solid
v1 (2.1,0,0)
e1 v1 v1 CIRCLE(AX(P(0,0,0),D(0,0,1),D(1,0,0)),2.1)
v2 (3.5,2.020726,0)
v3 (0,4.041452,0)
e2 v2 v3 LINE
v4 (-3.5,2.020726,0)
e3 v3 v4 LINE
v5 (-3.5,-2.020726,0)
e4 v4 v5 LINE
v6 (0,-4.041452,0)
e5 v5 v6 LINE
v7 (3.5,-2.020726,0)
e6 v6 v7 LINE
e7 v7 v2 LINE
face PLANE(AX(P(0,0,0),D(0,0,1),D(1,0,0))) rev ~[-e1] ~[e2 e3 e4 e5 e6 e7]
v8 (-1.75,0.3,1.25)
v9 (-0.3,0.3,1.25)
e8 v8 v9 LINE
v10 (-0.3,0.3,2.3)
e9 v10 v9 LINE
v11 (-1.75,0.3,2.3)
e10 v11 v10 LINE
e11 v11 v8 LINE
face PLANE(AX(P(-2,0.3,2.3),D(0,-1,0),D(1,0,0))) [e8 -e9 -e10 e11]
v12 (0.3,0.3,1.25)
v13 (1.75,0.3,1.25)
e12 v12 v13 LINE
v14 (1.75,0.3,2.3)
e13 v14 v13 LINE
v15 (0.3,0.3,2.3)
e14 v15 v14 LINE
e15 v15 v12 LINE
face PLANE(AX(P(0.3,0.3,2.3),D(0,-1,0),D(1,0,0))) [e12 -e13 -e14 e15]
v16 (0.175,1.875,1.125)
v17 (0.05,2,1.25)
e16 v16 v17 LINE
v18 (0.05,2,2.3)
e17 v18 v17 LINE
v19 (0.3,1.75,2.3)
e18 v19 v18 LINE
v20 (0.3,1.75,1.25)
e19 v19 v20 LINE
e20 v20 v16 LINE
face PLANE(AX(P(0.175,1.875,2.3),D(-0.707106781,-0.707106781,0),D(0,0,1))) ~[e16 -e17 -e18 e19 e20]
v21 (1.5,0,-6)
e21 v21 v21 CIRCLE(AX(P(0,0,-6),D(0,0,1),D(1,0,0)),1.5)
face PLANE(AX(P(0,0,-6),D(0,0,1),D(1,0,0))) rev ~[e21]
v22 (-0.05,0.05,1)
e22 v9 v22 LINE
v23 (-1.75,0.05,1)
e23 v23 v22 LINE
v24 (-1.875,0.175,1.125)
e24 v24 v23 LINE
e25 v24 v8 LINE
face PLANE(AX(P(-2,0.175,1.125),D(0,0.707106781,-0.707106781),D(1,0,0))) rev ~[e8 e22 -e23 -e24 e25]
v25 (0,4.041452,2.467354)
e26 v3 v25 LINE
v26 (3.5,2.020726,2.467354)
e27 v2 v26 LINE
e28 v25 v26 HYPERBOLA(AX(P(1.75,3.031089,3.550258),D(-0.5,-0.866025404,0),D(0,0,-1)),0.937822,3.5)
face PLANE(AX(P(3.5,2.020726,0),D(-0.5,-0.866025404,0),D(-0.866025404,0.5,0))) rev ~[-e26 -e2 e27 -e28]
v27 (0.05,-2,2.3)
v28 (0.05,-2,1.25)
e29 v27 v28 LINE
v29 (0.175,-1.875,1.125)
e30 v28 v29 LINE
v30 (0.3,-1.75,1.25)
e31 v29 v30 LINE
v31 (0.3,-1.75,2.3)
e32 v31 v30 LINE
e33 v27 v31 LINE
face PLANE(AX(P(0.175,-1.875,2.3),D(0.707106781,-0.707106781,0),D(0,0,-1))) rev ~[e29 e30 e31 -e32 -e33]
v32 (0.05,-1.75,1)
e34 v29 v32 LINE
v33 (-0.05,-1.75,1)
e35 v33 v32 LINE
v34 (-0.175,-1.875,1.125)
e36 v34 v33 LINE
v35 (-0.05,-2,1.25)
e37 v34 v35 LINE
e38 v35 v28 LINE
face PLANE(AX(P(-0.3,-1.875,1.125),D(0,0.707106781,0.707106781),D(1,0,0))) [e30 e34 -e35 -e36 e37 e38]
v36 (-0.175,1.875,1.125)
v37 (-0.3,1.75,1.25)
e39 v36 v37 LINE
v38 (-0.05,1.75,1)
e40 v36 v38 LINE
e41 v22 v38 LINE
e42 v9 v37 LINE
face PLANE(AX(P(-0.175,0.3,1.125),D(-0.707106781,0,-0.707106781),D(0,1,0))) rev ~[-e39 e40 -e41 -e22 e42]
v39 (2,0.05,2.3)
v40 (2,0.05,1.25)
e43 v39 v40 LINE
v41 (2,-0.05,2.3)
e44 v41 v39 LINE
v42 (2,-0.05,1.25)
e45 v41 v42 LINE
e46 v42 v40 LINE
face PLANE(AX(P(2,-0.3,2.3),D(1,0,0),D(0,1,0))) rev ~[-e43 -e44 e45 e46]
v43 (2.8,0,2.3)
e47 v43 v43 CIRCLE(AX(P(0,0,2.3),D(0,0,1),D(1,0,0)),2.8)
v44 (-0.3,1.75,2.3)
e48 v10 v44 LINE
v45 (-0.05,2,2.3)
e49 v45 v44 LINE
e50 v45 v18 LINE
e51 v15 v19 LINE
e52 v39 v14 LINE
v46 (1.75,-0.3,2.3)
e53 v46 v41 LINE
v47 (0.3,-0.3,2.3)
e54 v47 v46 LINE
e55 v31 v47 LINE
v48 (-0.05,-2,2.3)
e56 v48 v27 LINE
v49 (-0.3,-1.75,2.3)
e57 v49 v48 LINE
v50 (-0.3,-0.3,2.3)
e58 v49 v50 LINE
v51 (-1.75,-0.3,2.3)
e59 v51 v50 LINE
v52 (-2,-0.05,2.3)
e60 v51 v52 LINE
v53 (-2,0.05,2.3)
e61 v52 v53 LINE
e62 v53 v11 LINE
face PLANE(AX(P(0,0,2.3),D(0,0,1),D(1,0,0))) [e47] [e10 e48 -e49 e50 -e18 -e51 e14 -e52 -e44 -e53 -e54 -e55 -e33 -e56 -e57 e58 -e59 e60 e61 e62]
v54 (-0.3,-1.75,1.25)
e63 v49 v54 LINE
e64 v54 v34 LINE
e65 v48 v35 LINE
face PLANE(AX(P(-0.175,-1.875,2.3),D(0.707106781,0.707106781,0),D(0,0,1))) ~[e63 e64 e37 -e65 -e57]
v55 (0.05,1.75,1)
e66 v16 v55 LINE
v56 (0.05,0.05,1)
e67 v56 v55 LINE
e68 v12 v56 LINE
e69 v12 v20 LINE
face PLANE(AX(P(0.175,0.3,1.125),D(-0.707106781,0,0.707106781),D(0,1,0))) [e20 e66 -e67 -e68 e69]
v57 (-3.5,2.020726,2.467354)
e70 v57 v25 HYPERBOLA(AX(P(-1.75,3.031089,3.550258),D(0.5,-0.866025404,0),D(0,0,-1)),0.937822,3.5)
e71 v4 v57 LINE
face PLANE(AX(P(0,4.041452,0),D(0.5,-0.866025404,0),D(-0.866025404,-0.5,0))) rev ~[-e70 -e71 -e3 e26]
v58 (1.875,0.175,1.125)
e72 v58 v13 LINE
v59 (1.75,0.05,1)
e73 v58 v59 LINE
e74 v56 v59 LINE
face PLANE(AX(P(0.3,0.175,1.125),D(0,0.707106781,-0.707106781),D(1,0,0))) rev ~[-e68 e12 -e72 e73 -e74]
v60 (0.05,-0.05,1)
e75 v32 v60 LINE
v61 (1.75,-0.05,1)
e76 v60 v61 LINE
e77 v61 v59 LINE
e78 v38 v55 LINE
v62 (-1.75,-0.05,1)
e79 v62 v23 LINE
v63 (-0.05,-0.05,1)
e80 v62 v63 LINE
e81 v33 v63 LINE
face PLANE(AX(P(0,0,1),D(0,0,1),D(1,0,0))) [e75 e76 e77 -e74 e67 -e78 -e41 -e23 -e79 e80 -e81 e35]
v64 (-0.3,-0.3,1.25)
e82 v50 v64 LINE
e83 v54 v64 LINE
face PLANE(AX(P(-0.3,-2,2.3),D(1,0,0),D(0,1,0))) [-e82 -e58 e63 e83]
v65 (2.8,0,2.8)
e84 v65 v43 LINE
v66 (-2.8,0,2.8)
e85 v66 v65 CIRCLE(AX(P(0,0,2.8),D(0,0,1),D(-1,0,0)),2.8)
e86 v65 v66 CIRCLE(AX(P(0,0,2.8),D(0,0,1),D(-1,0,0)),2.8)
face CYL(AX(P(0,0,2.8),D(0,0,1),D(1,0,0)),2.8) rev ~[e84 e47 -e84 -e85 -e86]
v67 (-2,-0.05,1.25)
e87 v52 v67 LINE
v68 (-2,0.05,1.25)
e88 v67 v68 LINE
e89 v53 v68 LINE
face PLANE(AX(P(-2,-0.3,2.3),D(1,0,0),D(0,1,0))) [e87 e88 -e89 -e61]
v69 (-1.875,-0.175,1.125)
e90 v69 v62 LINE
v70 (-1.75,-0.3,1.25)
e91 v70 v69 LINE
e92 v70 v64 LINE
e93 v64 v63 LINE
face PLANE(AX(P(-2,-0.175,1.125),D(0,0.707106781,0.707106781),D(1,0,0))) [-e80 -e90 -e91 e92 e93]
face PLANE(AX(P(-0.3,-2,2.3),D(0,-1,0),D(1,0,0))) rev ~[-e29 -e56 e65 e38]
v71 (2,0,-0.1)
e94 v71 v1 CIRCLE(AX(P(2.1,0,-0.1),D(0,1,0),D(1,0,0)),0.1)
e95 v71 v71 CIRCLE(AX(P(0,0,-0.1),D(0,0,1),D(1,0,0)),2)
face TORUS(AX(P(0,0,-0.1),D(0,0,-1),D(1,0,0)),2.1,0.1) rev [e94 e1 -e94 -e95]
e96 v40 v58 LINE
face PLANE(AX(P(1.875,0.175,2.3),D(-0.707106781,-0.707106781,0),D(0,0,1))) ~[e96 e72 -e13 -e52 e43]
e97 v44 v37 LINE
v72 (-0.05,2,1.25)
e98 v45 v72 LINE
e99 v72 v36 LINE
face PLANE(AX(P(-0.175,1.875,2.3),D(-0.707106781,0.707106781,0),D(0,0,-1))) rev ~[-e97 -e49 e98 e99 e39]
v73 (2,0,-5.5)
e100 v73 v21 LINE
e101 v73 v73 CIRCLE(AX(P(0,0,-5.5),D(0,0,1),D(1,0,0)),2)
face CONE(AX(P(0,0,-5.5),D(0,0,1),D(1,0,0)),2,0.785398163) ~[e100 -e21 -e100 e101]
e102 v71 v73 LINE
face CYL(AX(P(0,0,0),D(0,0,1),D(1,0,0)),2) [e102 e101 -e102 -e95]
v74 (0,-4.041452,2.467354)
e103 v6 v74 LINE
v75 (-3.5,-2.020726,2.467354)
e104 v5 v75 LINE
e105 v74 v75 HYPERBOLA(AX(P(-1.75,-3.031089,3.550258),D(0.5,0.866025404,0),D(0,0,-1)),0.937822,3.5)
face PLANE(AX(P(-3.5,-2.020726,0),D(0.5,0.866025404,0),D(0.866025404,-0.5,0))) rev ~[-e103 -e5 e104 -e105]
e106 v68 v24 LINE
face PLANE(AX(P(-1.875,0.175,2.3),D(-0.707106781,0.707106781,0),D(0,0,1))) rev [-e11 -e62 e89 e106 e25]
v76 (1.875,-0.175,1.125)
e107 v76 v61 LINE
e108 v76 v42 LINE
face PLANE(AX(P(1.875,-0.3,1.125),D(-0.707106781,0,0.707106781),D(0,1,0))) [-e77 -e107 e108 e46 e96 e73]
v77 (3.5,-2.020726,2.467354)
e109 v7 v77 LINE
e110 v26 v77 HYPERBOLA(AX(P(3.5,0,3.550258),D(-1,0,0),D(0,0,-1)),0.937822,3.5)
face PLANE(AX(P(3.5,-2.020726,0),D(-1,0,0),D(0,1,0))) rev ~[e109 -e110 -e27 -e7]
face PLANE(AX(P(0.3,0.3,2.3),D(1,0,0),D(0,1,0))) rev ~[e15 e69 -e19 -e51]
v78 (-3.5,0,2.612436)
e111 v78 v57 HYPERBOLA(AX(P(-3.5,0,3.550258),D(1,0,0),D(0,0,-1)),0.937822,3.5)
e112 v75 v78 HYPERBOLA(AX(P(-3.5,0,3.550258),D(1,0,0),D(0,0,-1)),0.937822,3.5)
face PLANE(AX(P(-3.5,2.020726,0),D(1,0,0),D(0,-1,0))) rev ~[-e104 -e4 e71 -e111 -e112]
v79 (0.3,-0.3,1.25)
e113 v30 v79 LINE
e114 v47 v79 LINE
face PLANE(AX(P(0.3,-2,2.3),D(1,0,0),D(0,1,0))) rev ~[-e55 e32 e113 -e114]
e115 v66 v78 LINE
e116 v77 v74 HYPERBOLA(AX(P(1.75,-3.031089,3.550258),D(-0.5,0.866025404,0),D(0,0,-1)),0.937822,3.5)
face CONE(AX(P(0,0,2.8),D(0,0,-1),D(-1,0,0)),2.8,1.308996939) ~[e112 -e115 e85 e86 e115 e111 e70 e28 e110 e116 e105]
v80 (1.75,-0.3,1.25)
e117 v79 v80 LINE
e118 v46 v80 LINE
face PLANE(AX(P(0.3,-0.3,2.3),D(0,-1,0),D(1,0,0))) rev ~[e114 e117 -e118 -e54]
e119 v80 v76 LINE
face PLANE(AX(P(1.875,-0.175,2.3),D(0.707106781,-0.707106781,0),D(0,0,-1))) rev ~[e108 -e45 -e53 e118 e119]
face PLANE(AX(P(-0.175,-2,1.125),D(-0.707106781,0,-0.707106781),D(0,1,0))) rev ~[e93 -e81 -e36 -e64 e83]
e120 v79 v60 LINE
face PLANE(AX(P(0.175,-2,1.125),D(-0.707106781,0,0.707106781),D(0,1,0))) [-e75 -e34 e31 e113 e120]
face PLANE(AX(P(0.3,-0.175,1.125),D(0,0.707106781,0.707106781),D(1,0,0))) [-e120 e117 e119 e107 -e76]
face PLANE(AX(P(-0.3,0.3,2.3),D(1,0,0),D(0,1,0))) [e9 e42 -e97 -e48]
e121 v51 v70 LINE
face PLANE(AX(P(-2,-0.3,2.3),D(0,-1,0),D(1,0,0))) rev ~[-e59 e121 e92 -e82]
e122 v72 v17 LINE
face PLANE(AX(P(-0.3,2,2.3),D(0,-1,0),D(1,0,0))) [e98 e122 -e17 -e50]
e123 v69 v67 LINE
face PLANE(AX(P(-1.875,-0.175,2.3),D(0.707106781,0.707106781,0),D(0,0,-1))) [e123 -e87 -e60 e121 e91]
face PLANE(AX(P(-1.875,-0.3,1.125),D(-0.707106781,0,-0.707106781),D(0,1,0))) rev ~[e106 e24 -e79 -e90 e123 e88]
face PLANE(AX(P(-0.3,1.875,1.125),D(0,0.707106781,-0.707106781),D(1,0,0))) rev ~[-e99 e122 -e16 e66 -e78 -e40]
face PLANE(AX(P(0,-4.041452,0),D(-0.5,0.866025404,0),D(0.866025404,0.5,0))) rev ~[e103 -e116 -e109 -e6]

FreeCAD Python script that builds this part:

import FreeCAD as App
import Part
import Sketcher

V = App.Vector
Q = App.Units.Quantity


def edges_at(feature, points):
    """Names of the edges that pass closest to the given points."""
    edges = feature.Shape.Edges
    near = lambda p: min(range(len(edges)), key=lambda i: edges[i].distToShape(Part.Vertex(*p))[0])
    return sorted({f"Edge{near(p) + 1}" for p in points})


def add_polygon(sketch, points):
    """Adds a closed chain of lines whose ends are joined by coincident constraints."""
    first, n = sketch.GeometryCount, len(points)
    for a, b in zip(points, points[1:] + points[:1]):
        sketch.addGeometry(Part.LineSegment(App.Vector(*a, 0), App.Vector(*b, 0)), False)
    for i in range(n):
        sketch.addConstraint(Sketcher.Constraint("Coincident", first + i, 2, first + (i + 1) % n, 1))

doc = App.newDocument("Part")
params = doc.addObject("Spreadsheet::Sheet", "Params")
for row, (alias, value) in enumerate([
    ("pad1_length", "2.8 mm"),
    ("sketch2_diameter", "4 mm"),
    ("pad2_length", "6 mm"),
    ("sketch3_width", "11.2 mm"),
    ("groove_angle", "360 deg"),
    ("sketch4_diameter", "5.6 mm"),
    ("pocket1_length", "0.5 mm"),
    ("sketch5_width", "1.7 mm"),
    ("sketch5_width2", "0.6 mm"),
    ("pocket2_length", "1.3 mm"),
    ("chamfer_size", "0.5 mm"),
    ("fillet_radius", "0.1 mm"),
    ("chamfer2_size", "0.25 mm"),
    ("chamfer3_size", "0.25 mm"),
], start=1):
    params.set(f"A{row}", alias)
    params.set(f"B{row}", "=" + value)
    params.setAlias(f"B{row}", alias)

body = doc.addObject("PartDesign::Body", "Body")

# Sketch on XY plane
sketch1 = body.newObject("Sketcher::SketchObject", "Sketch")
sketch1.AttachmentSupport = (doc.getObject("XY_Plane"), [""])
sketch1.MapMode = "FlatFace"
add_polygon(sketch1, [(0, 4.041452), (-3.5, 2.020726), (-3.5, -2.020726), (0, -4.041452), (3.5, -2.020726), (3.5, 2.020726)])  # lines 0-5
sketch1.addConstraint([
    Sketcher.Constraint("Vertical", 1),
    Sketcher.Constraint("Vertical", 4),
    Sketcher.Constraint("Symmetric", 0, 2, 3, 2, -1, 1),
    Sketcher.Constraint("Symmetric", 2, 2, 5, 2, -1, 1),
    Sketcher.Constraint("PointOnObject", 2, 2, -2),
    Sketcher.Constraint("Parallel", 2, 5),
    Sketcher.Constraint("Horizontal", 1, 2, 3, 2),
    Sketcher.Constraint("Angle", 0, Q("-150 deg")),
    Sketcher.Constraint("DistanceX", 1, 2, 3, 2, Q("7 mm")),
    Sketcher.Constraint("DistanceY", 1, 2, 1, 1, Q("4.041452 mm")),
])
pad1 = body.newObject("PartDesign::Pad", "Pad")
pad1.Profile = sketch1
pad1.setExpression("Length", "Params.pad1_length")

# Sketch on XY plane
sketch2 = body.newObject("Sketcher::SketchObject", "Sketch001")
sketch2.AttachmentSupport = (doc.getObject("XY_Plane"), [""])
sketch2.MapMode = "FlatFace"
sketch2.addGeometry(Part.Circle(V(0, 0, 0), V(0, 0, 1), 2), False)
sketch2.addConstraint([
    Sketcher.Constraint("Coincident", 0, 3, -1, 1),
    Sketcher.Constraint("Diameter", 0, Q("4 mm")),
])
sketch2.setExpression("Constraints[1]", "Params.sketch2_diameter")
pad2 = body.newObject("PartDesign::Pad", "Pad001")
pad2.Profile = sketch2
pad2.setExpression("Length", "Params.pad2_length")
pad2.Reversed = True

# Sketch on YZ plane
sketch3 = body.newObject("Sketcher::SketchObject", "Sketch002")
sketch3.AttachmentSupport = (doc.getObject("YZ_Plane"), [""])
sketch3.MapMode = "FlatFace"
add_polygon(sketch3, [(14, 2.8), (2.8, 2.8), (14, -0.201031)])  # lines 0-2
sketch3.addConstraint([
    Sketcher.Constraint("Horizontal", 0),
    Sketcher.Constraint("Vertical", 2),
    Sketcher.Constraint("Angle", 1, Q("-15 deg")),
    Sketcher.Constraint("DistanceX", 0, 2, 0, 1, Q("11.2 mm")),
    Sketcher.Constraint("DistanceX", -1, 1, 1, 2, Q("14 mm")),
    Sketcher.Constraint("DistanceY", -1, 1, 0, 2, Q("2.8 mm")),
])
sketch3.setExpression("Constraints[6]", "Params.sketch3_width")
groove = body.newObject("PartDesign::Groove", "Groove")
groove.Profile = sketch3
groove.ReferenceAxis = (sketch3, ["V_Axis"])
groove.setExpression("Angle", "Params.groove_angle")

# Sketch on XY plane
sketch4 = body.newObject("Sketcher::SketchObject", "Sketch003")
sketch4.AttachmentSupport = (doc.getObject("XY_Plane"), [""])
sketch4.MapMode = "FlatFace"
sketch4.AttachmentOffset = App.Placement(V(0, 0, 2.8), App.Rotation())
sketch4.addGeometry(Part.Circle(V(0, 0, 0), V(0, 0, 1), 2.8), False)
sketch4.addConstraint([
    Sketcher.Constraint("Coincident", 0, 3, -1, 1),
    Sketcher.Constraint("Diameter", 0, Q("5.6 mm")),
])
sketch4.setExpression("Constraints[1]", "Params.sketch4_diameter")
pocket1 = body.newObject("PartDesign::Pocket", "Pocket")
pocket1.Profile = sketch4
pocket1.setExpression("Length", "Params.pocket1_length")

# Sketch on XY plane
sketch5 = body.newObject("Sketcher::SketchObject", "Sketch004")
sketch5.AttachmentSupport = (doc.getObject("XY_Plane"), [""])
sketch5.MapMode = "FlatFace"
sketch5.AttachmentOffset = App.Placement(V(0, 0, 2.3), App.Rotation())
add_polygon(sketch5, [(-2, 0.3), (-2, -0.3), (-0.3, -0.3), (-0.3, -2), (0.3, -2), (0.3, -0.3), (2, -0.3), (2, 0.3), (0.3, 0.3), (0.3, 2), (-0.3, 2), (-0.3, 0.3)])  # lines 0-11
sketch5.addConstraint([
    Sketcher.Constraint("Vertical", 0),
    Sketcher.Constraint("Horizontal", 1),
    Sketcher.Constraint("Vertical", 2),
    Sketcher.Constraint("Horizontal", 3),
    Sketcher.Constraint("Vertical", 4),
    Sketcher.Constraint("Horizontal", 5),
    Sketcher.Constraint("Vertical", 6),
    Sketcher.Constraint("Horizontal", 7),
    Sketcher.Constraint("Vertical", 8),
    Sketcher.Constraint("Horizontal", 9),
    Sketcher.Constraint("Vertical", 10),
    Sketcher.Constraint("Horizontal", 11),
    Sketcher.Constraint("Symmetric", 0, 2, 6, 2, -1, 1),
    Sketcher.Constraint("Symmetric", 2, 2, 8, 2, -1, 1),
    Sketcher.Constraint("Symmetric", 4, 2, 10, 2, -1, 1),
    Sketcher.Constraint("Symmetric", 1, 2, 4, 2, -2),
    Sketcher.Constraint("Equal", 9, 0),
    Sketcher.Constraint("Equal", 11, 2),
    Sketcher.Constraint("DistanceX", 1, 1, 1, 2, Q("1.7 mm")),
    Sketcher.Constraint("DistanceX", 3, 1, 3, 2, Q("0.6 mm")),
])
sketch5.setExpression("Constraints[30]", "Params.sketch5_width")
sketch5.setExpression("Constraints[31]", "Params.sketch5_width2")
pocket2 = body.newObject("PartDesign::Pocket", "Pocket001")
pocket2.Profile = sketch5
pocket2.setExpression("Length", "Params.pocket2_length")
doc.recompute()

chamfer = body.newObject("PartDesign::Chamfer", "Chamfer")
chamfer.Base = (pocket2, edges_at(pocket2, [(-2, 0, -6)]))
chamfer.setExpression("Size", "Params.chamfer_size")
doc.recompute()

fillet = body.newObject("PartDesign::Fillet", "Fillet")
fillet.Base = (chamfer, edges_at(chamfer, [(-2, 0, 0)]))
fillet.setExpression("Radius", "Params.fillet_radius")
doc.recompute()

chamfer2 = body.newObject("PartDesign::Chamfer", "Chamfer001")
chamfer2.Base = (fillet, edges_at(fillet, [
    (0.3, 1.15, 1),
    (1.15, 0.3, 1),
    (-0.3, -1.15, 1),
    (-2, 0, 1),
    (-1.15, 0.3, 1),
    (-0.3, 1.15, 1),
    (0, 2, 1),
    (0, -2, 1),
    (0.3, -1.15, 1),
    (-1.15, -0.3, 1),
    (2, 0, 1),
    (1.15, -0.3, 1),
]))
chamfer2.setExpression("Size", "Params.chamfer2_size")
doc.recompute()

chamfer3 = body.newObject("PartDesign::Chamfer", "Chamfer002")
chamfer3.Base = (chamfer2, edges_at(chamfer2, [
    (2, 0.3, 1.775),
    (2, -0.3, 1.775),
    (0.3, -2, 1.775),
    (-0.3, -2, 1.775),
    (-2, -0.3, 1.775),
    (-2, 0.3, 1.775),
    (-0.3, 2, 1.775),
    (0.3, 2, 1.775),
]))
chamfer3.setExpression("Size", "Params.chamfer3_size")

doc.recompute()
